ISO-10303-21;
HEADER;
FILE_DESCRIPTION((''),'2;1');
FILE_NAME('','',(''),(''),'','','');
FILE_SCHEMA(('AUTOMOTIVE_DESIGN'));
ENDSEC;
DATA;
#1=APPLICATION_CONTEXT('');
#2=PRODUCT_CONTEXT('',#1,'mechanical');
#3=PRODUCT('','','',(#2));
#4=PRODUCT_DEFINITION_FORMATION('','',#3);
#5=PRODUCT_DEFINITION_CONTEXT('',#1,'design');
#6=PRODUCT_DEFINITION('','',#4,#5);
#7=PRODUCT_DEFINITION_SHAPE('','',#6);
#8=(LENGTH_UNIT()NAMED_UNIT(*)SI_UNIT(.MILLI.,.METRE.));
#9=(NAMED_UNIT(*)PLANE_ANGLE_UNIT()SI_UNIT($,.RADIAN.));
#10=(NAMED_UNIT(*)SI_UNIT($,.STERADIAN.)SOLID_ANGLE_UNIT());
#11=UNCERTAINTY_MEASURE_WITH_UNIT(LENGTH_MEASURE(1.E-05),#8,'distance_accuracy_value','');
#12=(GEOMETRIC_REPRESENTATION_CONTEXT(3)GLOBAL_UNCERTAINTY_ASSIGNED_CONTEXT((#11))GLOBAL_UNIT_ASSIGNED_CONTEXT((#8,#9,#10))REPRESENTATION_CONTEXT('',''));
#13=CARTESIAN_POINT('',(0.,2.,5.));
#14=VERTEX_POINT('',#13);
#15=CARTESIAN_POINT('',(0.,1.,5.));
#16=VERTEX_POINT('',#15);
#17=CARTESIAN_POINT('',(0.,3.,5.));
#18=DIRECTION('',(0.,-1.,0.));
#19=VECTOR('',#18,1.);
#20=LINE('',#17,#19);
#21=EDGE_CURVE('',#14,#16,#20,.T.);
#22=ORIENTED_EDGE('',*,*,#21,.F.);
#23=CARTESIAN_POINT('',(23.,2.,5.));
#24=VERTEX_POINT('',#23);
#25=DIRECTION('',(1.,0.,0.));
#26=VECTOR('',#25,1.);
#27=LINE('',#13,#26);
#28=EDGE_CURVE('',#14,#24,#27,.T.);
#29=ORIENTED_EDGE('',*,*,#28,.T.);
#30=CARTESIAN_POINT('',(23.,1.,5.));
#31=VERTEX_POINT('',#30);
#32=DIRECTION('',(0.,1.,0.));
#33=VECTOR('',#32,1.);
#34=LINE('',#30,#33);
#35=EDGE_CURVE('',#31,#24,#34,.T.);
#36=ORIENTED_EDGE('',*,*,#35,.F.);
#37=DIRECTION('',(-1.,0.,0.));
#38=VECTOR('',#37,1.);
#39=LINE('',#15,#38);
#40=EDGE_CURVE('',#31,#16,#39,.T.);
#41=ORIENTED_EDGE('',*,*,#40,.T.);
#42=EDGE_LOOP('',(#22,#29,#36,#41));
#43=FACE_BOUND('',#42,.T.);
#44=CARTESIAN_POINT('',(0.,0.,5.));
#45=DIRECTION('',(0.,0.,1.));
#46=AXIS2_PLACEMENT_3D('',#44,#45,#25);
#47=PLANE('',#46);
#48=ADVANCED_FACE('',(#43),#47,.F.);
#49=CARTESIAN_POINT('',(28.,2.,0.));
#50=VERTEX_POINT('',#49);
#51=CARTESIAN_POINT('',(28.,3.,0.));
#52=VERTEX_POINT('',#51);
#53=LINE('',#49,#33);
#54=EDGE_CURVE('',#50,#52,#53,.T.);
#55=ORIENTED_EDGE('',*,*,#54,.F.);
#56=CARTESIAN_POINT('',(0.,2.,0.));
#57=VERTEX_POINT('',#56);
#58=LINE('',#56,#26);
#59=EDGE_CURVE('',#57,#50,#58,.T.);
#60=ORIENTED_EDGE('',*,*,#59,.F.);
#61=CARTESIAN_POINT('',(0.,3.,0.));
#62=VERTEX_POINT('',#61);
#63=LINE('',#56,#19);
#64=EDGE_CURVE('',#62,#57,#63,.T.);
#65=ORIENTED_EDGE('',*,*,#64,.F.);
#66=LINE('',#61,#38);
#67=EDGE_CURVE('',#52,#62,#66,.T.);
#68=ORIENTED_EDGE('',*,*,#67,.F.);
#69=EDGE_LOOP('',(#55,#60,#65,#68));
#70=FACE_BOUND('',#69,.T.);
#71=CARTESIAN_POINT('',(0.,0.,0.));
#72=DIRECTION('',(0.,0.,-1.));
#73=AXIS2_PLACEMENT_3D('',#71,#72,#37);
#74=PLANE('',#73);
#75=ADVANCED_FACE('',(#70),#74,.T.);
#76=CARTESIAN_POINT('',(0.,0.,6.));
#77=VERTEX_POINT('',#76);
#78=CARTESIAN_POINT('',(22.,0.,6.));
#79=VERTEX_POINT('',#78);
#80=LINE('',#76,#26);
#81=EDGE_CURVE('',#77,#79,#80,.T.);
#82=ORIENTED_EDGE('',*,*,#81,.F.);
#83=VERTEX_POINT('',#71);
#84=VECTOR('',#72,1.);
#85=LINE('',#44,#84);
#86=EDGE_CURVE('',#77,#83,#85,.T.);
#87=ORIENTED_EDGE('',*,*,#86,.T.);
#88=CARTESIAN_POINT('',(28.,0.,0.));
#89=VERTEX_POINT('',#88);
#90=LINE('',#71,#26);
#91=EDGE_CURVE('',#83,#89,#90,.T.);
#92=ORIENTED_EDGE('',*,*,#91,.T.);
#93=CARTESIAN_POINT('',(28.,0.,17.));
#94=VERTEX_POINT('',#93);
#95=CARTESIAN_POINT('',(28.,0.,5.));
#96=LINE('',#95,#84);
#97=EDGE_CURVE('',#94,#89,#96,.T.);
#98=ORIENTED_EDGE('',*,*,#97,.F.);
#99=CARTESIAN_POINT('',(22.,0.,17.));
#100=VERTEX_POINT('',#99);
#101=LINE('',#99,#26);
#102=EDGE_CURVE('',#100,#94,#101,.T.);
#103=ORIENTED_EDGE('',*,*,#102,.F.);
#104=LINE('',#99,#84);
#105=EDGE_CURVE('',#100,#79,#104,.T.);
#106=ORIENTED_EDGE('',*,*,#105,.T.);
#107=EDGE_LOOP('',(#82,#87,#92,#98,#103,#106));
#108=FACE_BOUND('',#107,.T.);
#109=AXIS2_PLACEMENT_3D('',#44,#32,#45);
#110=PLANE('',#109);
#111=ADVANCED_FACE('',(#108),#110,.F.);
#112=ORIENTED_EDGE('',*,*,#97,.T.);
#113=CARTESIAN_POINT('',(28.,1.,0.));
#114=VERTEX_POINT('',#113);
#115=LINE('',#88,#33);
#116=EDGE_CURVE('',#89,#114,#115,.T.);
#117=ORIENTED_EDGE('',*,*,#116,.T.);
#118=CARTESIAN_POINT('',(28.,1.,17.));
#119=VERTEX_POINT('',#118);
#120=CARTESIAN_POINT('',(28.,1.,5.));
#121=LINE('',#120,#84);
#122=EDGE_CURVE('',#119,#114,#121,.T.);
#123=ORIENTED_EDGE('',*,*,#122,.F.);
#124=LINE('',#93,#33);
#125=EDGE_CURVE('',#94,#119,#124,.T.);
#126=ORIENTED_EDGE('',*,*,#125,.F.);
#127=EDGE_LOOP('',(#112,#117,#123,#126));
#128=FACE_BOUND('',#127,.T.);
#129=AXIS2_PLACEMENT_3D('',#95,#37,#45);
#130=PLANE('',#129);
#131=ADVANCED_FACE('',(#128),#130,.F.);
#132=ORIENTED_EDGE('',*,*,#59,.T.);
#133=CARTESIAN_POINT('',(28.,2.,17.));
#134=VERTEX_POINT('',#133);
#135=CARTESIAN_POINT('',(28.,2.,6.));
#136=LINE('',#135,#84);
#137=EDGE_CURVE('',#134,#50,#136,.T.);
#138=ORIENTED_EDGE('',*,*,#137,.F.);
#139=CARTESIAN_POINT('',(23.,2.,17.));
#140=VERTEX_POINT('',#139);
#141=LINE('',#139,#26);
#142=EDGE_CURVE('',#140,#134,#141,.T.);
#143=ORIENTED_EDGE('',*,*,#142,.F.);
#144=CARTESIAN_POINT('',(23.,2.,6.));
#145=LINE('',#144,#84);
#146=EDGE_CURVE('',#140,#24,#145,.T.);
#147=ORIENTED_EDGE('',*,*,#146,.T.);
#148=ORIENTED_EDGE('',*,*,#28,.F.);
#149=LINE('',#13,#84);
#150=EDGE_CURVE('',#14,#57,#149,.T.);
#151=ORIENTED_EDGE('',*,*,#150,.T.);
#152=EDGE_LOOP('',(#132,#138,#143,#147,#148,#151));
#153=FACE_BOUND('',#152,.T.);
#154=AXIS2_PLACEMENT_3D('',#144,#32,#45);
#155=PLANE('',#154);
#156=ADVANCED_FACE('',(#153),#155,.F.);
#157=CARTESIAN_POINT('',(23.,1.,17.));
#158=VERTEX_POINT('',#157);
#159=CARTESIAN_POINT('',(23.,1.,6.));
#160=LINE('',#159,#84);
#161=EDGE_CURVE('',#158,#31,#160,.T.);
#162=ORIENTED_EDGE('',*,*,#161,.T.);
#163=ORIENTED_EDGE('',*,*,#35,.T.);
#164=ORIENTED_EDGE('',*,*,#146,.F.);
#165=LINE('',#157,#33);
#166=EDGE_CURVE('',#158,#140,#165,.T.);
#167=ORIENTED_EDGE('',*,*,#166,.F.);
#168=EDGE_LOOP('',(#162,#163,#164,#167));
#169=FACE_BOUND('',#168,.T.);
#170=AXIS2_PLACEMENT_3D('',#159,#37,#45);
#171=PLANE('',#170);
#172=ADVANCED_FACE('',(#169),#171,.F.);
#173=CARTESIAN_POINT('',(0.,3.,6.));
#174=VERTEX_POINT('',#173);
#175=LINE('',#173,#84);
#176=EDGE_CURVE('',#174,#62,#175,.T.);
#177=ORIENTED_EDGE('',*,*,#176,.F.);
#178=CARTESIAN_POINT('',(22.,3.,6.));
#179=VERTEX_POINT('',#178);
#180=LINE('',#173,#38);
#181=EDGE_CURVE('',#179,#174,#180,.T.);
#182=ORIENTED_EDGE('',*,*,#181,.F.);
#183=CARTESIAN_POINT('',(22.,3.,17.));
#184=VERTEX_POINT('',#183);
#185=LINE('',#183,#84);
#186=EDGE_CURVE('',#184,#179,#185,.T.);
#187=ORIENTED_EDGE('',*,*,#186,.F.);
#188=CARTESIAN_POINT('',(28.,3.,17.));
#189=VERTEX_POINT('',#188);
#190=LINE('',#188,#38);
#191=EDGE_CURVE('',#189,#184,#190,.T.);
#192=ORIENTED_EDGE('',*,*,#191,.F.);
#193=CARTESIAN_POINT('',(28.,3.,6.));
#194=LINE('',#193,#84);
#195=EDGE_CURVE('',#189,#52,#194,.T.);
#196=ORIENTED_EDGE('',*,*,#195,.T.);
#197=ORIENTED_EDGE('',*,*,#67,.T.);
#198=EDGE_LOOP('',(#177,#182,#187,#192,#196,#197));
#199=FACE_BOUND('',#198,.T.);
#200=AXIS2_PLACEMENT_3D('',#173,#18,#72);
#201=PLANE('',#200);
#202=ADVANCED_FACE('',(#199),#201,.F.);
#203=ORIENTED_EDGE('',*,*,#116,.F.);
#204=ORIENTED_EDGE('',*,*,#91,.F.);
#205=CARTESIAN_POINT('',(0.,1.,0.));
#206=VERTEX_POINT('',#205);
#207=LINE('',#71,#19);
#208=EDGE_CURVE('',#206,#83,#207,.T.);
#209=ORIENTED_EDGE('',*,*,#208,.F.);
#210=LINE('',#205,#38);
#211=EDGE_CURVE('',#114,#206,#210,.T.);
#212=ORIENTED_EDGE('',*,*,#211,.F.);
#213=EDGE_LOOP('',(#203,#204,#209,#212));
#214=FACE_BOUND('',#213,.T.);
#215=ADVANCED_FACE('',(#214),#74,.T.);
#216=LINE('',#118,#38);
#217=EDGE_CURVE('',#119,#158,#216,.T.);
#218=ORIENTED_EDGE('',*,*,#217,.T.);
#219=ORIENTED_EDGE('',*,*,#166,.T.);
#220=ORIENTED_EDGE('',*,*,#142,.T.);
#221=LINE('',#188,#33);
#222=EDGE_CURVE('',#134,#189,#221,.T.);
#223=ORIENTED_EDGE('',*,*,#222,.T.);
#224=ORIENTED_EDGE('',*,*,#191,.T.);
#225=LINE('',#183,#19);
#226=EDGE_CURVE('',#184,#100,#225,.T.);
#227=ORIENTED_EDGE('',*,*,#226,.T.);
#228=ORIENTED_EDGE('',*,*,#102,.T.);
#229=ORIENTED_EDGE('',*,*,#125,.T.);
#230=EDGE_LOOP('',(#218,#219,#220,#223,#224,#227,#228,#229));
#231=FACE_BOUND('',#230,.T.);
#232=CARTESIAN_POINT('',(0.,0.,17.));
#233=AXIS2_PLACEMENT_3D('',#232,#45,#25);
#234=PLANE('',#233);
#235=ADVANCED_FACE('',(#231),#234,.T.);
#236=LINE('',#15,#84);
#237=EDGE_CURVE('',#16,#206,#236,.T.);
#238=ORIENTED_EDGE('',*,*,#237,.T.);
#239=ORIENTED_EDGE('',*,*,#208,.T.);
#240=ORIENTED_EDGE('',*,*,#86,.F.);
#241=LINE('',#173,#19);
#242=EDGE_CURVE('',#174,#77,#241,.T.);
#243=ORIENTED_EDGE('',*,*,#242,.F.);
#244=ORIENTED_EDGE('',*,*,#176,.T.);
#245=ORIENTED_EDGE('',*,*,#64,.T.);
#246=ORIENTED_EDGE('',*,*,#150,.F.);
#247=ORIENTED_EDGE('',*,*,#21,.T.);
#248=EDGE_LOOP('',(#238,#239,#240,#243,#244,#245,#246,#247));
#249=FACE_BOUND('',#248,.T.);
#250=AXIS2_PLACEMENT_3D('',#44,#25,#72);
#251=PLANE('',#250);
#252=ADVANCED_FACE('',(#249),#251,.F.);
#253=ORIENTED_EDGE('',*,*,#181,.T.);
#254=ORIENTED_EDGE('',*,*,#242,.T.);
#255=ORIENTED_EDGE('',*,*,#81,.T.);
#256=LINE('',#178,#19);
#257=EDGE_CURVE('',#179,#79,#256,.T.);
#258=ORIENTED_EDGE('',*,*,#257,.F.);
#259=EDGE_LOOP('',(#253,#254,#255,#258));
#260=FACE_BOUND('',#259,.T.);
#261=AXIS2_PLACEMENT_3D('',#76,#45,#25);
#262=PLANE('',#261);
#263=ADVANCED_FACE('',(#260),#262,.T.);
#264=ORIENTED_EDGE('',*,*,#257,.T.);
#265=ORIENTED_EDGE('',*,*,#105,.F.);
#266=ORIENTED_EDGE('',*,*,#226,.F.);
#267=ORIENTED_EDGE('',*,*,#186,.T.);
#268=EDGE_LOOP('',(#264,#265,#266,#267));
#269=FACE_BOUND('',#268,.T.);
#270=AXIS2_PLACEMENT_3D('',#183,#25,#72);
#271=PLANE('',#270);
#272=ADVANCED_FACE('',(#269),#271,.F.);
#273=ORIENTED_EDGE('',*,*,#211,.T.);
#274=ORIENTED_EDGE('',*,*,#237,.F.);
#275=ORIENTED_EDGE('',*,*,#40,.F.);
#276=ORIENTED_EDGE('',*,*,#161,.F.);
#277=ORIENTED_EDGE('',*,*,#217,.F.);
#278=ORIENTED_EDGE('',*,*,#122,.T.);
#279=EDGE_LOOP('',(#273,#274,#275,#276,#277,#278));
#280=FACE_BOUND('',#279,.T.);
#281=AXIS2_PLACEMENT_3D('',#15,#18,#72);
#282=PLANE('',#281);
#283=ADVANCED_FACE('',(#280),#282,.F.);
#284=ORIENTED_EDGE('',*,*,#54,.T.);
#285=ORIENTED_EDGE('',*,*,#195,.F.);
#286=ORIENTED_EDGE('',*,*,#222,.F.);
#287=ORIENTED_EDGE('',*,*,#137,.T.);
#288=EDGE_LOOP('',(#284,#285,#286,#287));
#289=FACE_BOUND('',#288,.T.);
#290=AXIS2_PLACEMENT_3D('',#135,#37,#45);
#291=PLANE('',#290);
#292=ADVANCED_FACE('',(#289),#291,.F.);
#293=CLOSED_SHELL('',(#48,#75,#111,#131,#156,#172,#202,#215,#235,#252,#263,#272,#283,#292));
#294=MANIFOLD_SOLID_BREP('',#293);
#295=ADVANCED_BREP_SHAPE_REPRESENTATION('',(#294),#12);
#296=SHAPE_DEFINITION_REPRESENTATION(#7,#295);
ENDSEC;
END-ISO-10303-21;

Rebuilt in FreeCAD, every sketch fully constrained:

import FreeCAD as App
import Part
import Sketcher
from FreeCAD import Vector


def add_polygon(sketch, points):
    """Adds a closed chain of lines whose ends are joined by coincident constraints."""
    first, n = sketch.GeometryCount, len(points)
    for a, b in zip(points, points[1:] + points[:1]):
        sketch.addGeometry(Part.LineSegment(App.Vector(*a, 0), App.Vector(*b, 0)), False)
    for i in range(n):
        sketch.addConstraint(Sketcher.Constraint("Coincident", first + i, 2, first + (i + 1) % n, 1))

doc = App.newDocument("Part")
params = doc.addObject("Spreadsheet::Sheet", "Params")
for row, (alias, value) in enumerate([
    ("sketch1_width", "28 mm"),
    ("sketch1_height", "1 mm"),
    ("pad1_length", "5 mm"),
    ("sketch2_width", "28 mm"),
    ("sketch2_height", "1 mm"),
    ("pad2_length", "5 mm"),
    ("sketch3_width", "28 mm"),
    ("sketch3_width2", "5 mm"),
    ("sketch3_height", "3 mm"),
    ("pad3_length", "1 mm"),
    ("sketch4_width", "6 mm"),
    ("sketch4_width2", "5 mm"),
    ("sketch4_height", "3 mm"),
    ("pad4_length", "11 mm"),
], start=1):
    params.set(f"A{row}", alias)
    params.set(f"B{row}", "=" + value)
    params.setAlias(f"B{row}", alias)

body = doc.addObject("PartDesign::Body", "Body")

sketch1 = body.newObject("Sketcher::SketchObject", "Sketch")
sketch1.AttachmentSupport = (doc.getObject("XY_Plane"), [""])
sketch1.MapMode = "FlatFace"
add_polygon(sketch1, [(0, 1), (0, 0), (28, 0), (28, 1)])
sketch1.addConstraint([
    Sketcher.Constraint("Vertical", 0),
    Sketcher.Constraint("Horizontal", 1),
    Sketcher.Constraint("Vertical", 2),
    Sketcher.Constraint("Horizontal", 3),
    Sketcher.Constraint("Coincident", 0, 2, -1, 1),
    Sketcher.Constraint("DistanceX", 1, 1, 1, 2, 28.0),
    Sketcher.Constraint("DistanceY", 0, 2, 0, 1, 1.0),
])
sketch1.setExpression("Constraints[9]", "Params.sketch1_width")
sketch1.setExpression("Constraints[10]", "Params.sketch1_height")
pad1 = body.newObject("PartDesign::Pad", "Pad")
pad1.Profile = sketch1
pad1.setExpression("Length", "Params.pad1_length")
body2 = doc.addObject("PartDesign::Body", "Body001")

sketch2 = body2.newObject("Sketcher::SketchObject", "Sketch001")
sketch2.AttachmentSupport = (doc.getObject("XY_Plane001"), [""])
sketch2.MapMode = "FlatFace"
add_polygon(sketch2, [(0, 3), (0, 2), (28, 2), (28, 3)])
sketch2.addConstraint([
    Sketcher.Constraint("Vertical", 0),
    Sketcher.Constraint("Horizontal", 1),
    Sketcher.Constraint("Vertical", 2),
    Sketcher.Constraint("Horizontal", 3),
    Sketcher.Constraint("PointOnObject", 0, 2, -2),
    Sketcher.Constraint("DistanceX", 1, 1, 1, 2, 28.0),
    Sketcher.Constraint("DistanceY", 0, 2, 0, 1, 1.0),
    Sketcher.Constraint("DistanceY", -1, 1, 0, 2, 2.0),
])
sketch2.setExpression("Constraints[9]", "Params.sketch2_width")
sketch2.setExpression("Constraints[10]", "Params.sketch2_height")
pad2 = body2.newObject("PartDesign::Pad", "Pad001")
pad2.Profile = sketch2
pad2.setExpression("Length", "Params.pad2_length")
body.AllowCompound = True
doc.recompute()

boolean = body.newObject("PartDesign::Boolean", "Boolean")
boolean.Type = "Fuse"
boolean.addObjects([body2])

sketch3 = body.newObject("Sketcher::SketchObject", "Sketch002")
sketch3.AttachmentSupport = (doc.getObject("XY_Plane"), [""])
sketch3.MapMode = "FlatFace"
sketch3.AttachmentOffset = App.Placement(Vector(0, 0, 5), App.Rotation())
add_polygon(sketch3, [(28, 3), (0, 3), (0, 0), (28, 0), (28, 1), (23, 1), (23, 2), (28, 2)])
sketch3.addConstraint([
    Sketcher.Constraint("Horizontal", 0),
    Sketcher.Constraint("Vertical", 1),
    Sketcher.Constraint("Horizontal", 2),
    Sketcher.Constraint("Vertical", 3),
    Sketcher.Constraint("Horizontal", 4),
    Sketcher.Constraint("Vertical", 5),
    Sketcher.Constraint("Horizontal", 6),
    Sketcher.Constraint("Vertical", 7),
    Sketcher.Constraint("Coincident", 1, 2, -1, 1),
    Sketcher.Constraint("Vertical", 3, 2, 6, 2),
    Sketcher.Constraint("Equal", 3, 5),
    Sketcher.Constraint("Equal", 5, 7),
    Sketcher.Constraint("DistanceX", 0, 2, 0, 1, 28.0),
    Sketcher.Constraint("DistanceX", 4, 2, 4, 1, 5.0),
    Sketcher.Constraint("DistanceY", 1, 2, 1, 1, 3.0),
])
sketch3.setExpression("Constraints[20]", "Params.sketch3_width")
sketch3.setExpression("Constraints[21]", "Params.sketch3_width2")
sketch3.setExpression("Constraints[22]", "Params.sketch3_height")
pad3 = body.newObject("PartDesign::Pad", "Pad002")
pad3.Profile = sketch3
pad3.setExpression("Length", "Params.pad3_length")

sketch4 = body.newObject("Sketcher::SketchObject", "Sketch003")
sketch4.AttachmentSupport = (doc.getObject("XY_Plane"), [""])
sketch4.MapMode = "FlatFace"
sketch4.AttachmentOffset = App.Placement(Vector(0, 0, 6), App.Rotation())
add_polygon(sketch4, [(28, 3), (22, 3), (22, 0), (28, 0), (28, 1), (23, 1), (23, 2), (28, 2)])
sketch4.addConstraint([
    Sketcher.Constraint("Horizontal", 0),
    Sketcher.Constraint("Vertical", 1),
    Sketcher.Constraint("Horizontal", 2),
    Sketcher.Constraint("Vertical", 3),
    Sketcher.Constraint("Horizontal", 4),
    Sketcher.Constraint("Vertical", 5),
    Sketcher.Constraint("Horizontal", 6),
    Sketcher.Constraint("Vertical", 7),
    Sketcher.Constraint("PointOnObject", 1, 2, -1),
    Sketcher.Constraint("Vertical", 3, 2, 6, 2),
    Sketcher.Constraint("Equal", 3, 5),
    Sketcher.Constraint("Equal", 5, 7),
    Sketcher.Constraint("DistanceX", 0, 2, 0, 1, 6.0),
    Sketcher.Constraint("DistanceX", 4, 2, 4, 1, 5.0),
    Sketcher.Constraint("DistanceY", 1, 2, 1, 1, 3.0),
    Sketcher.Constraint("DistanceX", -1, 1, 0, 2, 22.0),
])
sketch4.setExpression("Constraints[20]", "Params.sketch4_width")
sketch4.setExpression("Constraints[21]", "Params.sketch4_width2")
sketch4.setExpression("Constraints[22]", "Params.sketch4_height")
pad4 = body.newObject("PartDesign::Pad", "Pad003")
pad4.Profile = sketch4
pad4.setExpression("Length", "Params.pad4_length")

doc.recompute()
